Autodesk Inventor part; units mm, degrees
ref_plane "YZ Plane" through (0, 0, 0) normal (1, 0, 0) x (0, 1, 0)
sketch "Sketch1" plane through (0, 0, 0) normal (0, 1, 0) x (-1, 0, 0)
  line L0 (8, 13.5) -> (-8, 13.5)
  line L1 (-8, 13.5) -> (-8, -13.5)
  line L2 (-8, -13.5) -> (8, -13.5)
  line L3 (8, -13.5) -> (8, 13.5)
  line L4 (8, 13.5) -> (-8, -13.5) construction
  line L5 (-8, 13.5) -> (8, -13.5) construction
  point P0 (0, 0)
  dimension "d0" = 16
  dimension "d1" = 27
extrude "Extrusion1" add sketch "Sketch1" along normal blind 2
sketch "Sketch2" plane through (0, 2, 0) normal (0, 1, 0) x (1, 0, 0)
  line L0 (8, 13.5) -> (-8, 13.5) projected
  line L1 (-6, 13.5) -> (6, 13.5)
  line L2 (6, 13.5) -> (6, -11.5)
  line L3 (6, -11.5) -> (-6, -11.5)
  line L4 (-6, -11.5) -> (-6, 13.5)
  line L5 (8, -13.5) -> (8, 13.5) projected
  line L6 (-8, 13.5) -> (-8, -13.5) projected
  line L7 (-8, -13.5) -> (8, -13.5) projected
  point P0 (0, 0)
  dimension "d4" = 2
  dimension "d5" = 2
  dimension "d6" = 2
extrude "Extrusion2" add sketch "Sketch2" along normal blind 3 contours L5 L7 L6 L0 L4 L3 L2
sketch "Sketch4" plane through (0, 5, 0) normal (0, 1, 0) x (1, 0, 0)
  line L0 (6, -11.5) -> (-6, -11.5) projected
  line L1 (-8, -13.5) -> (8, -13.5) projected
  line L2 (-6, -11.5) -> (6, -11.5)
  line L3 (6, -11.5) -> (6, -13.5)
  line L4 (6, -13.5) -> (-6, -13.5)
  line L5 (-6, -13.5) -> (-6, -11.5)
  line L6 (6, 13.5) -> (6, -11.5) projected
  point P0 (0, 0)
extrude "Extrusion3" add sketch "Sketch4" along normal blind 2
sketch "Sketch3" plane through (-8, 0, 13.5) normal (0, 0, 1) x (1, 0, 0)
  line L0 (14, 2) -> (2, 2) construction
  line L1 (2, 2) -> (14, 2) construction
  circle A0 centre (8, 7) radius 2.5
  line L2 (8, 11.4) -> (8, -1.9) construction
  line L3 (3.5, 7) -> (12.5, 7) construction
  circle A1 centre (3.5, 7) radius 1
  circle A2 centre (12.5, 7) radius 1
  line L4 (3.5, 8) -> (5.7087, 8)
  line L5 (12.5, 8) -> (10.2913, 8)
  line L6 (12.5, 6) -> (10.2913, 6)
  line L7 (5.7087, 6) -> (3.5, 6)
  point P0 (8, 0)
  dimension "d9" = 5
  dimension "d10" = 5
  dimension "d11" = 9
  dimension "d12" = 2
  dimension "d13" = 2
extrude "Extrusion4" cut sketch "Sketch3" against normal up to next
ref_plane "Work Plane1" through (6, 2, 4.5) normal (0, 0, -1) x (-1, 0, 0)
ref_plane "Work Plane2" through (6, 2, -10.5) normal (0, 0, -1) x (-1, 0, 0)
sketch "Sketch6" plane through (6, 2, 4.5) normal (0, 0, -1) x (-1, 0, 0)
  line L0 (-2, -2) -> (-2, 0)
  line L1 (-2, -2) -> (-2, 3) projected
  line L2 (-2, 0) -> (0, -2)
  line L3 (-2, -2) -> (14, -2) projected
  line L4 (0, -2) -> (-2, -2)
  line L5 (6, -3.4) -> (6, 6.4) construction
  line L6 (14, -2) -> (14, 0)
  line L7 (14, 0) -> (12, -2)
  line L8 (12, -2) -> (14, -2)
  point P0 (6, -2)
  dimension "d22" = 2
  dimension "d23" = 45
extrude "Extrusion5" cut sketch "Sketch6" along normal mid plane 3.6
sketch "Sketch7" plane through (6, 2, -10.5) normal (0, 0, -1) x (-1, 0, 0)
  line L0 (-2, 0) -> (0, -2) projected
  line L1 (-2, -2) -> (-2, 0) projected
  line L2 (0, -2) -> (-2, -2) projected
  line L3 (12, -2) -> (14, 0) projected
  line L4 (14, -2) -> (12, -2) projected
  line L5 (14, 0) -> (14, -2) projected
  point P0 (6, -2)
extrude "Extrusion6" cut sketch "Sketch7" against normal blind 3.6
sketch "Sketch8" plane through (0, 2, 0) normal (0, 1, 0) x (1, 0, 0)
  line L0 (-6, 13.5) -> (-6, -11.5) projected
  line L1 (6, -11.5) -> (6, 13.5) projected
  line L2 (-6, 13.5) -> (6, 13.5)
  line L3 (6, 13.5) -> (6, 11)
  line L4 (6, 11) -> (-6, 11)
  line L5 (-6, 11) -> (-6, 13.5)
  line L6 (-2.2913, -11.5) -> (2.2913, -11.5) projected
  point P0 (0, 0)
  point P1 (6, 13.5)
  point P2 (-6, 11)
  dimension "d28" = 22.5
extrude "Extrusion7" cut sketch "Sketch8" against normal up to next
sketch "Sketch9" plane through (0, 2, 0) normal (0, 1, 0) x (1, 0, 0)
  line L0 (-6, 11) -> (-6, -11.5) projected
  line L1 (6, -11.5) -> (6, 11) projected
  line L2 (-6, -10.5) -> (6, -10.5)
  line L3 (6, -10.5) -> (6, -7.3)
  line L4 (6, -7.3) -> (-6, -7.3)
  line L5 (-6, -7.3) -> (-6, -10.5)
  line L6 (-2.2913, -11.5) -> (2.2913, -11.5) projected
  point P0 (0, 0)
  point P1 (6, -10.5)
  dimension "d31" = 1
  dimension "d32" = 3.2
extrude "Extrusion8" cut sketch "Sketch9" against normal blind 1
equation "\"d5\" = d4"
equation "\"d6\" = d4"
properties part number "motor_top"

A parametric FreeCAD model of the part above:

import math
import FreeCAD as App
import Part
import Sketcher

V = App.Vector

doc = App.newDocument("Part")
body = doc.addObject("PartDesign::Body", "Body")

sketch1 = body.newObject("Sketcher::SketchObject", "Sketch")
sketch1.AttachmentSupport = (doc.getObject("XZ_Plane"), [""])
sketch1.MapMode = "FlatFace"
sketch1.addGeometry([
    Part.LineSegment(V(-8, -14, 0), V(-8, 14, 0)),
    Part.LineSegment(V(-8, 14, 0), V(8, 14, 0)),
    Part.LineSegment(V(8, 14, 0), V(8, -14, 0)),
    Part.LineSegment(V(8, -14, 0), V(-8, -14, 0)),
], False)
sketch1.addConstraint([
    Sketcher.Constraint("Coincident", 0, 2, 1, 1),
    Sketcher.Constraint("Coincident", 1, 2, 2, 1),
    Sketcher.Constraint("Coincident", 2, 2, 3, 1),
    Sketcher.Constraint("Coincident", 3, 2, 0, 1),
    Sketcher.Constraint("Vertical", 0),
    Sketcher.Constraint("Horizontal", 1),
    Sketcher.Constraint("Vertical", 2),
    Sketcher.Constraint("Horizontal", 3),
    Sketcher.Constraint("Symmetric", 0, 2, 2, 2, -1, 1),
    Sketcher.Constraint("DistanceX", 1, 1, 1, 2, 16.0),
    Sketcher.Constraint("DistanceY", 0, 1, 0, 2, 27.0),
])
pad1 = body.newObject("PartDesign::Pad", "Pad")
pad1.Profile = sketch1
pad1.Length = 2
pad1.Reversed = True

sketch2 = body.newObject("Sketcher::SketchObject", "Sketch001")
sketch2.AttachmentSupport = (doc.getObject("XZ_Plane"), [""])
sketch2.MapMode = "FlatFace"
sketch2.AttachmentOffset = App.Placement(V(0, 0, -2), App.Rotation())
sketch2.addGeometry([
    Part.LineSegment(V(8, 13.5, 0), V(8, -13.5, 0)),
    Part.LineSegment(V(8, -13.5, 0), V(6, -13.5, 0)),
    Part.LineSegment(V(6, -13.5, 0), V(6, 11.5, 0)),
    Part.LineSegment(V(6, 11.5, 0), V(-6, 11.5, 0)),
    Part.LineSegment(V(-6, 11.5, 0), V(-6, -13.5, 0)),
    Part.LineSegment(V(-6, -13.5, 0), V(-8, -13.5, 0)),
    Part.LineSegment(V(-8, -13.5, 0), V(-8, 13.5, 0)),
    Part.LineSegment(V(-8, 13.5, 0), V(8, 13.5, 0)),
], False)
sketch2.addConstraint([
    Sketcher.Constraint("Coincident", 0, 2, 1, 1),
    Sketcher.Constraint("Coincident", 1, 2, 2, 1),
    Sketcher.Constraint("Coincident", 2, 2, 3, 1),
    Sketcher.Constraint("Coincident", 3, 2, 4, 1),
    Sketcher.Constraint("Coincident", 4, 2, 5, 1),
    Sketcher.Constraint("Coincident", 5, 2, 6, 1),
    Sketcher.Constraint("Coincident", 6, 2, 7, 1),
    Sketcher.Constraint("Coincident", 7, 2, 0, 1),
    Sketcher.Constraint("Vertical", 0),
    Sketcher.Constraint("Horizontal", 1),
    Sketcher.Constraint("Vertical", 2),
    Sketcher.Constraint("Horizontal", 3),
    Sketcher.Constraint("Vertical", 4),
    Sketcher.Constraint("Horizontal", 5),
    Sketcher.Constraint("Vertical", 6),
    Sketcher.Constraint("Horizontal", 7),
    Sketcher.Constraint("Symmetric", 0, 2, 6, 2, -1, 1),
    Sketcher.Constraint("Symmetric", 1, 2, 4, 2, -2),
    Sketcher.Constraint("DistanceX", 1, 2, 1, 1, 2.0),
    Sketcher.Constraint("DistanceY", 3, 2, 6, 2, 2.0),
    Sketcher.Constraint("DistanceX", 3, 2, 3, 1, 12.0),
    Sketcher.Constraint("DistanceY", 0, 2, 0, 1, 27.0),
])
pad2 = body.newObject("PartDesign::Pad", "Pad001")
pad2.Profile = sketch2
pad2.Length = 3
pad2.Reversed = True

sketch3 = body.newObject("Sketcher::SketchObject", "Sketch002")
sketch3.AttachmentSupport = (doc.getObject("XZ_Plane"), [""])
sketch3.MapMode = "FlatFace"
sketch3.AttachmentOffset = App.Placement(V(0, 0, -5), App.Rotation())
sketch3.addGeometry([
    Part.LineSegment(V(6, 13.5, 0), V(6, 11.5, 0)),
    Part.LineSegment(V(6, 11.5, 0), V(-6, 11.5, 0)),
    Part.LineSegment(V(-6, 11.5, 0), V(-6, 13.5, 0)),
    Part.LineSegment(V(-6, 13.5, 0), V(6, 13.5, 0)),
], False)
sketch3.addConstraint([
    Sketcher.Constraint("Coincident", 0, 2, 1, 1),
    Sketcher.Constraint("Coincident", 1, 2, 2, 1),
    Sketcher.Constraint("Coincident", 2, 2, 3, 1),
    Sketcher.Constraint("Coincident", 3, 2, 0, 1),
    Sketcher.Constraint("Vertical", 0),
    Sketcher.Constraint("Horizontal", 1),
    Sketcher.Constraint("Vertical", 2),
    Sketcher.Constraint("Horizontal", 3),
    Sketcher.Constraint("DistanceX", 1, 2, 1, 1, 12.0),
    Sketcher.Constraint("DistanceY", 0, 2, 0, 1, 2.0),
    Sketcher.Constraint("DistanceX", -1, 1, 0, 2, 6.0),
    Sketcher.Constraint("DistanceY", -1, 1, 0, 2, 11.5),
])
pad3 = body.newObject("PartDesign::Pad", "Pad002")
pad3.Profile = sketch3
pad3.Length = 2
pad3.Reversed = True

sketch4 = body.newObject("Sketcher::SketchObject", "Sketch003")
sketch4.AttachmentSupport = (doc.getObject("XY_Plane"), [""])
sketch4.MapMode = "FlatFace"
sketch4.AttachmentOffset = App.Placement(V(0, 0, 13.5), App.Rotation())
sketch4.addGeometry([
    Part.ArcOfCircle(Part.Circle(V(0, 7, 0), V(0, 0, 1), 2.5), math.radians(-156), math.radians(-24)),
    Part.LineSegment(V(2.3, 6, 0), V(4.5, 6, 0)),
    Part.ArcOfCircle(Part.Circle(V(4.5, 7, 0), V(0, 0, 1), 1), math.radians(-90), math.radians(90)),
    Part.LineSegment(V(4.5, 8, 0), V(2.3, 8, 0)),
    Part.ArcOfCircle(Part.Circle(V(0, 7, 0), V(0, 0, 1), 2.5), math.radians(24), math.radians(156)),
    Part.LineSegment(V(-2.3, 8, 0), V(-4.5, 8, 0)),
    Part.ArcOfCircle(Part.Circle(V(-4.5, 7, 0), V(0, 0, 1), 1), math.radians(90), math.radians(270)),
    Part.LineSegment(V(-4.5, 6, 0), V(-2.3, 6, 0)),
], False)
sketch4.addConstraint([
    Sketcher.Constraint("Coincident", 0, 2, 1, 1),
    Sketcher.Constraint("Tangent", 1, 2, 2, 1),
    Sketcher.Constraint("Tangent", 2, 2, 3, 1),
    Sketcher.Constraint("Coincident", 3, 2, 4, 1),
    Sketcher.Constraint("Coincident", 4, 2, 5, 1),
    Sketcher.Constraint("Tangent", 5, 2, 6, 1),
    Sketcher.Constraint("Tangent", 6, 2, 7, 1),
    Sketcher.Constraint("Coincident", 7, 2, 0, 1),
    Sketcher.Constraint("Horizontal", 1),
    Sketcher.Constraint("Horizontal", 3),
    Sketcher.Constraint("Horizontal", 5),
    Sketcher.Constraint("Horizontal", 7),
    Sketcher.Constraint("Coincident", 4, 3, 0, 3),
    Sketcher.Constraint("Equal", 0, 4),
    Sketcher.Constraint("Equal", 2, 6),
    Sketcher.Constraint("Symmetric", 2, 3, 6, 3, -2),
    Sketcher.Constraint("PointOnObject", 0, 3, -2),
    Sketcher.Constraint("Horizontal", 0, 3, 2, 3),
    Sketcher.Constraint("Radius", 2, 1.0),
    Sketcher.Constraint("Radius", 0, 2.5),
    Sketcher.Constraint("DistanceX", 6, 3, 2, 3, 9.0),
    Sketcher.Constraint("DistanceY", -1, 1, 0, 3, 7.0),
])
pocket1 = body.newObject("PartDesign::Pocket", "Pocket")
pocket1.Profile = sketch4
pocket1.Type = "UpToFirst"

sketch5 = body.newObject("Sketcher::SketchObject", "Sketch004")
sketch5.AttachmentSupport = (doc.getObject("XY_Plane"), [""])
sketch5.MapMode = "FlatFace"
sketch5.AttachmentOffset = App.Placement(V(0, 0, 4.5), App.Rotation())
sketch5.addGeometry([
    Part.LineSegment(V(-8, 2, 0), V(-6, 0, 0)),
    Part.LineSegment(V(-6, 0, 0), V(-8, 0, 0)),
    Part.LineSegment(V(-8, 0, 0), V(-8, 2, 0)),
    Part.LineSegment(V(8, 2, 0), V(8, 0, 0)),
    Part.LineSegment(V(8, 0, 0), V(6, 0, 0)),
    Part.LineSegment(V(6, 0, 0), V(8, 2, 0)),
], False)
sketch5.addConstraint([
    Sketcher.Constraint("Coincident", 0, 2, 1, 1),
    Sketcher.Constraint("Coincident", 1, 2, 2, 1),
    Sketcher.Constraint("Coincident", 2, 2, 0, 1),
    Sketcher.Constraint("Coincident", 3, 2, 4, 1),
    Sketcher.Constraint("Coincident", 4, 2, 5, 1),
    Sketcher.Constraint("Coincident", 5, 2, 3, 1),
    Sketcher.Constraint("Horizontal", 1),
    Sketcher.Constraint("Vertical", 2),
    Sketcher.Constraint("Vertical", 3),
    Sketcher.Constraint("Horizontal", 4),
    Sketcher.Constraint("Symmetric", 1, 2, 3, 2, -1, 1),
    Sketcher.Constraint("Symmetric", 0, 2, 4, 2, -2),
    Sketcher.Constraint("Perpendicular", 0, 5),
    Sketcher.Constraint("Horizontal", 2, 2, 5, 2),
    Sketcher.Constraint("DistanceX", 1, 2, 1, 1, 2.0),
    Sketcher.Constraint("DistanceX", 0, 2, -1, 1, 6.0),
])
pocket2 = body.newObject("PartDesign::Pocket", "Pocket001")
pocket2.Profile = sketch5
pocket2.Length = 3.6
pocket2.Midplane = True

sketch6 = body.newObject("Sketcher::SketchObject", "Sketch005")
sketch6.AttachmentSupport = (doc.getObject("XY_Plane"), [""])
sketch6.MapMode = "FlatFace"
sketch6.AttachmentOffset = App.Placement(V(0, 0, -10.5), App.Rotation())
sketch6.addGeometry([
    Part.LineSegment(V(6, 0, 0), V(8, 2, 0)),
    Part.LineSegment(V(8, 2, 0), V(8, 0, 0)),
    Part.LineSegment(V(8, 0, 0), V(6, 0, 0)),
    Part.LineSegment(V(-8, 2, 0), V(-6, 0, 0)),
    Part.LineSegment(V(-6, 0, 0), V(-8, 0, 0)),
    Part.LineSegment(V(-8, 0, 0), V(-8, 2, 0)),
], False)
sketch6.addConstraint([
    Sketcher.Constraint("Coincident", 0, 2, 1, 1),
    Sketcher.Constraint("Coincident", 1, 2, 2, 1),
    Sketcher.Constraint("Coincident", 2, 2, 0, 1),
    Sketcher.Constraint("Coincident", 3, 2, 4, 1),
    Sketcher.Constraint("Coincident", 4, 2, 5, 1),
    Sketcher.Constraint("Coincident", 5, 2, 3, 1),
    Sketcher.Constraint("Vertical", 1),
    Sketcher.Constraint("Horizontal", 2),
    Sketcher.Constraint("Horizontal", 4),
    Sketcher.Constraint("Vertical", 5),
    Sketcher.Constraint("Symmetric", 2, 2, 3, 2, -1, 1),
    Sketcher.Constraint("Symmetric", 1, 2, 4, 2, -2),
    Sketcher.Constraint("Perpendicular", 0, 3),
    Sketcher.Constraint("Horizontal", 0, 2, 5, 2),
    Sketcher.Constraint("DistanceX", 2, 2, 2, 1, 2.0),
    Sketcher.Constraint("DistanceX", -1, 1, 0, 2, 8.0),
])
pocket3 = body.newObject("PartDesign::Pocket", "Pocket002")
pocket3.Profile = sketch6
pocket3.Length = 3.6
pocket3.Reversed = True

sketch7 = body.newObject("Sketcher::SketchObject", "Sketch006")
sketch7.AttachmentSupport = (doc.getObject("XZ_Plane"), [""])
sketch7.MapMode = "FlatFace"
sketch7.AttachmentOffset = App.Placement(V(0, 0, -2), App.Rotation())
sketch7.addGeometry([
    Part.LineSegment(V(6, -13.5, 0), V(-6, -13.5, 0)),
    Part.LineSegment(V(-6, -13.5, 0), V(-6, -11, 0)),
    Part.LineSegment(V(-6, -11, 0), V(6, -11, 0)),
    Part.LineSegment(V(6, -11, 0), V(6, -13.5, 0)),
], False)
sketch7.addConstraint([
    Sketcher.Constraint("Coincident", 0, 2, 1, 1),
    Sketcher.Constraint("Coincident", 1, 2, 2, 1),
    Sketcher.Constraint("Coincident", 2, 2, 3, 1),
    Sketcher.Constraint("Coincident", 3, 2, 0, 1),
    Sketcher.Constraint("Horizontal", 0),
    Sketcher.Constraint("Vertical", 1),
    Sketcher.Constraint("Horizontal", 2),
    Sketcher.Constraint("Vertical", 3),
    Sketcher.Constraint("DistanceX", 0, 2, 0, 1, 12.0),
    Sketcher.Constraint("DistanceY", 1, 1, 1, 2, 2.5),
    Sketcher.Constraint("DistanceX", 0, 2, -1, 1, 6.0),
    Sketcher.Constraint("DistanceY", 1, 2, -1, 1, 11.0),
])
pocket4 = body.newObject("PartDesign::Pocket", "Pocket003")
pocket4.Profile = sketch7
pocket4.Type = "UpToFirst"
pocket4.Reversed = True

sketch8 = body.newObject("Sketcher::SketchObject", "Sketch007")
sketch8.AttachmentSupport = (doc.getObject("XZ_Plane"), [""])
sketch8.MapMode = "FlatFace"
sketch8.AttachmentOffset = App.Placement(V(0, 0, -2), App.Rotation())
sketch8.addGeometry([
    Part.LineSegment(V(6, 7.3, 0), V(-6, 7.3, 0)),
    Part.LineSegment(V(-6, 7.3, 0), V(-6, 10.5, 0)),
    Part.LineSegment(V(-6, 10.5, 0), V(6, 10.5, 0)),
    Part.LineSegment(V(6, 10.5, 0), V(6, 7.3, 0)),
], False)
sketch8.addConstraint([
    Sketcher.Constraint("Coincident", 0, 2, 1, 1),
    Sketcher.Constraint("Coincident", 1, 2, 2, 1),
    Sketcher.Constraint("Coincident", 2, 2, 3, 1),
    Sketcher.Constraint("Coincident", 3, 2, 0, 1),
    Sketcher.Constraint("Horizontal", 0),
    Sketcher.Constraint("Vertical", 1),
    Sketcher.Constraint("Horizontal", 2),
    Sketcher.Constraint("Vertical", 3),
    Sketcher.Constraint("DistanceY", 1, 1, 1, 2, 3.2),
    Sketcher.Constraint("DistanceX", 0, 2, 0, 1, 12.0),
    Sketcher.Constraint("DistanceX", 0, 2, -1, 1, 6.0),
    Sketcher.Constraint("DistanceY", -1, 1, 0, 2, 7.3),
])
pocket5 = body.newObject("PartDesign::Pocket", "Pocket004")
pocket5.Profile = sketch8
pocket5.Length = 1
pocket5.Reversed = True

doc.recompute()
